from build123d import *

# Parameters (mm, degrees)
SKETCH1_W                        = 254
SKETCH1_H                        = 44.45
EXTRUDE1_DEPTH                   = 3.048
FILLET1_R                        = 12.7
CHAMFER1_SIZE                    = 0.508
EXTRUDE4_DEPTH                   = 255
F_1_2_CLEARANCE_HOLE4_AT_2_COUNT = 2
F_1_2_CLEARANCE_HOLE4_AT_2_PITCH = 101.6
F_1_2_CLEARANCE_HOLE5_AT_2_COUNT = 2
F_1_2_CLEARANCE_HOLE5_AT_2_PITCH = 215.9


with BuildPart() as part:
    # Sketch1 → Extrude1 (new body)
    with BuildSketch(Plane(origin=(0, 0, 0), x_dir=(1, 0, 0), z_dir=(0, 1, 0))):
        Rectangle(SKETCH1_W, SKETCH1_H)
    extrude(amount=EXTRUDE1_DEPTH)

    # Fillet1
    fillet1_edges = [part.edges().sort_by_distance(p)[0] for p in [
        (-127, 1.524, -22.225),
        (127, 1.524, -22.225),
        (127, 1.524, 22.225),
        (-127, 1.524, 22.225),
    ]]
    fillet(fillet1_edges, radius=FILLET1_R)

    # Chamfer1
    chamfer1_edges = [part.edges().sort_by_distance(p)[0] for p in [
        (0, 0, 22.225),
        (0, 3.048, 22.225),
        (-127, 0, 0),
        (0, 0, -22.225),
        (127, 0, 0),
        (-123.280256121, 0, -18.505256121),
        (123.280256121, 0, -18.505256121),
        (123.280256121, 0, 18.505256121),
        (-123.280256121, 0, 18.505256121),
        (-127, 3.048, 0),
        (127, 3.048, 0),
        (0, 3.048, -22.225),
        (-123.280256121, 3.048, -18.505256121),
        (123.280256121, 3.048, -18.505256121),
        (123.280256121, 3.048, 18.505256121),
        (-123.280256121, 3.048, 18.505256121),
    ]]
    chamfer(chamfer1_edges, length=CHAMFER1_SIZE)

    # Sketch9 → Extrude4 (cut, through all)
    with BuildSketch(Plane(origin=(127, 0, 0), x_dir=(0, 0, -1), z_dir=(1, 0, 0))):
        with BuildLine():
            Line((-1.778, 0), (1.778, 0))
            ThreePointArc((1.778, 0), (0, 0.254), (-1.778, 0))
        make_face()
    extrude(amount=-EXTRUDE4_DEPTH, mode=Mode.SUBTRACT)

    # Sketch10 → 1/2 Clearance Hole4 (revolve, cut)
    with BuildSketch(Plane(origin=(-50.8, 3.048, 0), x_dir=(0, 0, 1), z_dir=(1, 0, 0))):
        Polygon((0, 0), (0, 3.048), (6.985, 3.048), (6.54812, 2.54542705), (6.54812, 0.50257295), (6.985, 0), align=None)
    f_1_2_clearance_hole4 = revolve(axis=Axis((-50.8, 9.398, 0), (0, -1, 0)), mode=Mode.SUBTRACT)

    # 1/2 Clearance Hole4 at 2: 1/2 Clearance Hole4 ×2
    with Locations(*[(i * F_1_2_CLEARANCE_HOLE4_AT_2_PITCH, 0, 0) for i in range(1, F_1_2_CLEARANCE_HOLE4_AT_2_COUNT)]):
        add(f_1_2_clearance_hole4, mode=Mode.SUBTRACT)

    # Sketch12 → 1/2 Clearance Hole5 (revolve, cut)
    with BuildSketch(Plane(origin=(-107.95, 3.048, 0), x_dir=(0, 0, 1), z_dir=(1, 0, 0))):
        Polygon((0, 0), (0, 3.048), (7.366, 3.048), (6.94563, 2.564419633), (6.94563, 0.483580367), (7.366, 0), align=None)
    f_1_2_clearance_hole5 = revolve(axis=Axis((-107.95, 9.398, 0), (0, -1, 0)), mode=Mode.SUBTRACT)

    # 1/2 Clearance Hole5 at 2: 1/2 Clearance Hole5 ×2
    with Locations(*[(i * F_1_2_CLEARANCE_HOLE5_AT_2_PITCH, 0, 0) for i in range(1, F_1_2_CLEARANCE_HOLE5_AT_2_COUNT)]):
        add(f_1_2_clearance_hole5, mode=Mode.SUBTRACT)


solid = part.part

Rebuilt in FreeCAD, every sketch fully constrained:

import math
import FreeCAD as App
import Part
import Sketcher
Q = App.Units.Quantity


def edges_at(feature, points):
    """Names of the edges that pass closest to the given points."""
    edges = feature.Shape.Edges
    near = lambda p: min(range(len(edges)), key=lambda i: edges[i].distToShape(Part.Vertex(*p))[0])
    return sorted({f"Edge{near(p) + 1}" for p in points})


def add_polygon(sketch, points):
    """Adds a closed chain of lines whose ends are joined by coincident constraints."""
    first, n = sketch.GeometryCount, len(points)
    for a, b in zip(points, points[1:] + points[:1]):
        sketch.addGeometry(Part.LineSegment(App.Vector(*a, 0), App.Vector(*b, 0)), False)
    for i in range(n):
        sketch.addConstraint(Sketcher.Constraint("Coincident", first + i, 2, first + (i + 1) % n, 1))

doc = App.newDocument("Part")
body = doc.addObject("PartDesign::Body", "Body")

# Sketch on XZ plane
sketch1 = doc.addObject("Sketcher::SketchObject", "Sketch")
body.addObject(sketch1)
sketch1.AttachmentSupport = (doc.XZ_Plane, [""])
sketch1.MapMode = "FlatFace"
add_polygon(sketch1, [(-127, -22), (-127, 22), (127, 22), (127, -22)])  # lines 0-3
sketch1.addConstraint(Sketcher.Constraint("Vertical", 0))
sketch1.addConstraint(Sketcher.Constraint("Horizontal", 1))
sketch1.addConstraint(Sketcher.Constraint("Vertical", 2))
sketch1.addConstraint(Sketcher.Constraint("Horizontal", 3))
sketch1.addConstraint(Sketcher.Constraint("Symmetric", 0, 2, 2, 2, -1, 1))
sketch1.addConstraint(Sketcher.Constraint("DistanceX", 1, 1, 1, 2, Q("10 in")))
sketch1.addConstraint(Sketcher.Constraint("DistanceY", 0, 1, 0, 2, Q("1.75 in")))
pad1 = doc.addObject("PartDesign::Pad", "Pad")
body.addObject(pad1)
pad1.Profile = sketch1
pad1.Length = Q("0.12 in")
pad1.Reversed = True
doc.recompute()

fillet = doc.addObject("PartDesign::Fillet", "Fillet")
body.addObject(fillet)
fillet.Base = (pad1, edges_at(pad1, [
    (-127, 1.524, -22.225),
    (127, 1.524, -22.225),
    (127, 1.524, 22.225),
    (-127, 1.524, 22.225),
]))
fillet.Radius = Q("0.5 in")
doc.recompute()

chamfer = doc.addObject("PartDesign::Chamfer", "Chamfer")
body.addObject(chamfer)
chamfer.Base = (fillet, edges_at(fillet, [
    (0, 0, 22.225),
    (0, 3.048, 22.225),
    (-127, 0, 0),
    (0, 0, -22.225),
    (127, 0, 0),
    (-123.28, 0, -18.505),
    (123.28, 0, -18.505),
    (123.28, 0, 18.505),
    (-123.28, 0, 18.505),
    (-127, 3.048, 0),
    (127, 3.048, 0),
    (0, 3.048, -22.225),
    (-123.28, 3.048, -18.505),
    (123.28, 3.048, -18.505),
    (123.28, 3.048, 18.505),
    (-123.28, 3.048, 18.505),
]))
chamfer.Size = Q("0.02 in")

# Sketch on YZ plane
sketch2 = doc.addObject("Sketcher::SketchObject", "Sketch001")
body.addObject(sketch2)
sketch2.AttachmentSupport = (doc.YZ_Plane, [""])
sketch2.MapMode = "FlatFace"
sketch2.AttachmentOffset = App.Placement(App.Vector(0, 0, 5 * 25.4), App.Rotation())
sketch2.addGeometry(Part.LineSegment(App.Vector(0, 1.8, 0), App.Vector(0, -1.8, 0)), False)
sketch2.addGeometry(Part.ArcOfCircle(Part.Circle(App.Vector(-6.1, 0, 0), App.Vector(0, 0, 1), 6.3), math.radians(-16), math.radians(16)), False)
sketch2.addConstraint(Sketcher.Constraint("Coincident", 0, 1, 1, 2))
sketch2.addConstraint(Sketcher.Constraint("Coincident", 1, 1, 0, 2))
sketch2.addConstraint(Sketcher.Constraint("Vertical", 0))
sketch2.addConstraint(Sketcher.Constraint("Symmetric", 0, 1, 1, 1, -1, 1))
sketch2.addConstraint(Sketcher.Constraint("Radius", 1, Q("0.25 in")))
sketch2.addConstraint(Sketcher.Constraint("DistanceY", 0, 2, 0, 1, Q("0.14 in")))
pocket1 = doc.addObject("PartDesign::Pocket", "Pocket")
body.addObject(pocket1)
pocket1.Profile = sketch2
pocket1.Type = "ThroughAll"

# Sketch on YZ plane
sketch3 = doc.addObject("Sketcher::SketchObject", "Sketch002")
body.addObject(sketch3)
sketch3.AttachmentSupport = (doc.YZ_Plane, [""])
sketch3.MapMode = "FlatFace"
sketch3.AttachmentOffset = App.Placement(App.Vector(0, 0, -2 * 25.4), App.Rotation())
add_polygon(sketch3, [(0, 0), (3, 0), (3, 7), (2.5, 6.5), (0.5, 6.5), (0, 7)])  # lines 0-5
sketch3.addConstraint(Sketcher.Constraint("Horizontal", 0))
sketch3.addConstraint(Sketcher.Constraint("Vertical", 1))
sketch3.addConstraint(Sketcher.Constraint("Horizontal", 3))
sketch3.addConstraint(Sketcher.Constraint("Vertical", 5))
sketch3.addConstraint(Sketcher.Constraint("Coincident", 5, 2, -1, 1))
sketch3.addConstraint(Sketcher.Constraint("Horizontal", 1, 2, 4, 2))
sketch3.addConstraint(Sketcher.Constraint("Equal", 2, 4))
sketch3.addConstraint(Sketcher.Constraint("Angle", 2, Q("-139 deg")))
sketch3.addConstraint(Sketcher.Constraint("DistanceX", 0, 1, 0, 2, Q("0.12 in")))
sketch3.addConstraint(Sketcher.Constraint("DistanceY", 1, 1, 1, 2, Q("0.275 in")))
sketch3.addConstraint(Sketcher.Constraint("DistanceY", -1, 1, 2, 2, Q("0.2578 in")))
groove = doc.addObject("PartDesign::Groove", "Groove")
body.addObject(groove)
groove.Profile = sketch3
groove.ReferenceAxis = (sketch3, ["H_Axis"])
groove.Angle = 360
doc.recompute()

linearpattern = doc.addObject("PartDesign::LinearPattern", "LinearPattern")
body.addObject(linearpattern)
linearpattern.Originals = [groove]
linearpattern.Direction = (doc.X_Axis, [""])
linearpattern.Mode = "offset"
linearpattern.Offset = Q("4 in")
linearpattern.Occurrences = 2
body.Tip = linearpattern

# Sketch on YZ plane
sketch4 = doc.addObject("Sketcher::SketchObject", "Sketch003")
body.addObject(sketch4)
sketch4.AttachmentSupport = (doc.YZ_Plane, [""])
sketch4.MapMode = "FlatFace"
sketch4.AttachmentOffset = App.Placement(App.Vector(0, 0, -4.25 * 25.4), App.Rotation())
add_polygon(sketch4, [(0, 0), (3, 0), (3, 7.4), (2.6, 6.9), (0.5, 6.9), (0, 7.4)])  # lines 0-5
sketch4.addConstraint(Sketcher.Constraint("Horizontal", 0))
sketch4.addConstraint(Sketcher.Constraint("Vertical", 1))
sketch4.addConstraint(Sketcher.Constraint("Horizontal", 3))
sketch4.addConstraint(Sketcher.Constraint("Vertical", 5))
sketch4.addConstraint(Sketcher.Constraint("Coincident", 5, 2, -1, 1))
sketch4.addConstraint(Sketcher.Constraint("Horizontal", 1, 2, 4, 2))
sketch4.addConstraint(Sketcher.Constraint("Equal", 2, 4))
sketch4.addConstraint(Sketcher.Constraint("Angle", 2, Q("-139 deg")))
sketch4.addConstraint(Sketcher.Constraint("DistanceX", 0, 1, 0, 2, Q("0.12 in")))
sketch4.addConstraint(Sketcher.Constraint("DistanceY", 1, 1, 1, 2, Q("0.29 in")))
sketch4.addConstraint(Sketcher.Constraint("DistanceX", 3, 2, 3, 1, 2.080839))
groove2 = doc.addObject("PartDesign::Groove", "Groove001")
body.addObject(groove2)
groove2.Profile = sketch4
groove2.ReferenceAxis = (sketch4, ["H_Axis"])
groove2.Angle = 360
doc.recompute()

linearpattern2 = doc.addObject("PartDesign::LinearPattern", "LinearPattern001")
body.addObject(linearpattern2)
linearpattern2.Originals = [groove2]
linearpattern2.Direction = (doc.X_Axis, [""])
linearpattern2.Mode = "offset"
linearpattern2.Offset = Q("8.5 in")
linearpattern2.Occurrences = 2
body.Tip = linearpattern2

doc.recompute()
